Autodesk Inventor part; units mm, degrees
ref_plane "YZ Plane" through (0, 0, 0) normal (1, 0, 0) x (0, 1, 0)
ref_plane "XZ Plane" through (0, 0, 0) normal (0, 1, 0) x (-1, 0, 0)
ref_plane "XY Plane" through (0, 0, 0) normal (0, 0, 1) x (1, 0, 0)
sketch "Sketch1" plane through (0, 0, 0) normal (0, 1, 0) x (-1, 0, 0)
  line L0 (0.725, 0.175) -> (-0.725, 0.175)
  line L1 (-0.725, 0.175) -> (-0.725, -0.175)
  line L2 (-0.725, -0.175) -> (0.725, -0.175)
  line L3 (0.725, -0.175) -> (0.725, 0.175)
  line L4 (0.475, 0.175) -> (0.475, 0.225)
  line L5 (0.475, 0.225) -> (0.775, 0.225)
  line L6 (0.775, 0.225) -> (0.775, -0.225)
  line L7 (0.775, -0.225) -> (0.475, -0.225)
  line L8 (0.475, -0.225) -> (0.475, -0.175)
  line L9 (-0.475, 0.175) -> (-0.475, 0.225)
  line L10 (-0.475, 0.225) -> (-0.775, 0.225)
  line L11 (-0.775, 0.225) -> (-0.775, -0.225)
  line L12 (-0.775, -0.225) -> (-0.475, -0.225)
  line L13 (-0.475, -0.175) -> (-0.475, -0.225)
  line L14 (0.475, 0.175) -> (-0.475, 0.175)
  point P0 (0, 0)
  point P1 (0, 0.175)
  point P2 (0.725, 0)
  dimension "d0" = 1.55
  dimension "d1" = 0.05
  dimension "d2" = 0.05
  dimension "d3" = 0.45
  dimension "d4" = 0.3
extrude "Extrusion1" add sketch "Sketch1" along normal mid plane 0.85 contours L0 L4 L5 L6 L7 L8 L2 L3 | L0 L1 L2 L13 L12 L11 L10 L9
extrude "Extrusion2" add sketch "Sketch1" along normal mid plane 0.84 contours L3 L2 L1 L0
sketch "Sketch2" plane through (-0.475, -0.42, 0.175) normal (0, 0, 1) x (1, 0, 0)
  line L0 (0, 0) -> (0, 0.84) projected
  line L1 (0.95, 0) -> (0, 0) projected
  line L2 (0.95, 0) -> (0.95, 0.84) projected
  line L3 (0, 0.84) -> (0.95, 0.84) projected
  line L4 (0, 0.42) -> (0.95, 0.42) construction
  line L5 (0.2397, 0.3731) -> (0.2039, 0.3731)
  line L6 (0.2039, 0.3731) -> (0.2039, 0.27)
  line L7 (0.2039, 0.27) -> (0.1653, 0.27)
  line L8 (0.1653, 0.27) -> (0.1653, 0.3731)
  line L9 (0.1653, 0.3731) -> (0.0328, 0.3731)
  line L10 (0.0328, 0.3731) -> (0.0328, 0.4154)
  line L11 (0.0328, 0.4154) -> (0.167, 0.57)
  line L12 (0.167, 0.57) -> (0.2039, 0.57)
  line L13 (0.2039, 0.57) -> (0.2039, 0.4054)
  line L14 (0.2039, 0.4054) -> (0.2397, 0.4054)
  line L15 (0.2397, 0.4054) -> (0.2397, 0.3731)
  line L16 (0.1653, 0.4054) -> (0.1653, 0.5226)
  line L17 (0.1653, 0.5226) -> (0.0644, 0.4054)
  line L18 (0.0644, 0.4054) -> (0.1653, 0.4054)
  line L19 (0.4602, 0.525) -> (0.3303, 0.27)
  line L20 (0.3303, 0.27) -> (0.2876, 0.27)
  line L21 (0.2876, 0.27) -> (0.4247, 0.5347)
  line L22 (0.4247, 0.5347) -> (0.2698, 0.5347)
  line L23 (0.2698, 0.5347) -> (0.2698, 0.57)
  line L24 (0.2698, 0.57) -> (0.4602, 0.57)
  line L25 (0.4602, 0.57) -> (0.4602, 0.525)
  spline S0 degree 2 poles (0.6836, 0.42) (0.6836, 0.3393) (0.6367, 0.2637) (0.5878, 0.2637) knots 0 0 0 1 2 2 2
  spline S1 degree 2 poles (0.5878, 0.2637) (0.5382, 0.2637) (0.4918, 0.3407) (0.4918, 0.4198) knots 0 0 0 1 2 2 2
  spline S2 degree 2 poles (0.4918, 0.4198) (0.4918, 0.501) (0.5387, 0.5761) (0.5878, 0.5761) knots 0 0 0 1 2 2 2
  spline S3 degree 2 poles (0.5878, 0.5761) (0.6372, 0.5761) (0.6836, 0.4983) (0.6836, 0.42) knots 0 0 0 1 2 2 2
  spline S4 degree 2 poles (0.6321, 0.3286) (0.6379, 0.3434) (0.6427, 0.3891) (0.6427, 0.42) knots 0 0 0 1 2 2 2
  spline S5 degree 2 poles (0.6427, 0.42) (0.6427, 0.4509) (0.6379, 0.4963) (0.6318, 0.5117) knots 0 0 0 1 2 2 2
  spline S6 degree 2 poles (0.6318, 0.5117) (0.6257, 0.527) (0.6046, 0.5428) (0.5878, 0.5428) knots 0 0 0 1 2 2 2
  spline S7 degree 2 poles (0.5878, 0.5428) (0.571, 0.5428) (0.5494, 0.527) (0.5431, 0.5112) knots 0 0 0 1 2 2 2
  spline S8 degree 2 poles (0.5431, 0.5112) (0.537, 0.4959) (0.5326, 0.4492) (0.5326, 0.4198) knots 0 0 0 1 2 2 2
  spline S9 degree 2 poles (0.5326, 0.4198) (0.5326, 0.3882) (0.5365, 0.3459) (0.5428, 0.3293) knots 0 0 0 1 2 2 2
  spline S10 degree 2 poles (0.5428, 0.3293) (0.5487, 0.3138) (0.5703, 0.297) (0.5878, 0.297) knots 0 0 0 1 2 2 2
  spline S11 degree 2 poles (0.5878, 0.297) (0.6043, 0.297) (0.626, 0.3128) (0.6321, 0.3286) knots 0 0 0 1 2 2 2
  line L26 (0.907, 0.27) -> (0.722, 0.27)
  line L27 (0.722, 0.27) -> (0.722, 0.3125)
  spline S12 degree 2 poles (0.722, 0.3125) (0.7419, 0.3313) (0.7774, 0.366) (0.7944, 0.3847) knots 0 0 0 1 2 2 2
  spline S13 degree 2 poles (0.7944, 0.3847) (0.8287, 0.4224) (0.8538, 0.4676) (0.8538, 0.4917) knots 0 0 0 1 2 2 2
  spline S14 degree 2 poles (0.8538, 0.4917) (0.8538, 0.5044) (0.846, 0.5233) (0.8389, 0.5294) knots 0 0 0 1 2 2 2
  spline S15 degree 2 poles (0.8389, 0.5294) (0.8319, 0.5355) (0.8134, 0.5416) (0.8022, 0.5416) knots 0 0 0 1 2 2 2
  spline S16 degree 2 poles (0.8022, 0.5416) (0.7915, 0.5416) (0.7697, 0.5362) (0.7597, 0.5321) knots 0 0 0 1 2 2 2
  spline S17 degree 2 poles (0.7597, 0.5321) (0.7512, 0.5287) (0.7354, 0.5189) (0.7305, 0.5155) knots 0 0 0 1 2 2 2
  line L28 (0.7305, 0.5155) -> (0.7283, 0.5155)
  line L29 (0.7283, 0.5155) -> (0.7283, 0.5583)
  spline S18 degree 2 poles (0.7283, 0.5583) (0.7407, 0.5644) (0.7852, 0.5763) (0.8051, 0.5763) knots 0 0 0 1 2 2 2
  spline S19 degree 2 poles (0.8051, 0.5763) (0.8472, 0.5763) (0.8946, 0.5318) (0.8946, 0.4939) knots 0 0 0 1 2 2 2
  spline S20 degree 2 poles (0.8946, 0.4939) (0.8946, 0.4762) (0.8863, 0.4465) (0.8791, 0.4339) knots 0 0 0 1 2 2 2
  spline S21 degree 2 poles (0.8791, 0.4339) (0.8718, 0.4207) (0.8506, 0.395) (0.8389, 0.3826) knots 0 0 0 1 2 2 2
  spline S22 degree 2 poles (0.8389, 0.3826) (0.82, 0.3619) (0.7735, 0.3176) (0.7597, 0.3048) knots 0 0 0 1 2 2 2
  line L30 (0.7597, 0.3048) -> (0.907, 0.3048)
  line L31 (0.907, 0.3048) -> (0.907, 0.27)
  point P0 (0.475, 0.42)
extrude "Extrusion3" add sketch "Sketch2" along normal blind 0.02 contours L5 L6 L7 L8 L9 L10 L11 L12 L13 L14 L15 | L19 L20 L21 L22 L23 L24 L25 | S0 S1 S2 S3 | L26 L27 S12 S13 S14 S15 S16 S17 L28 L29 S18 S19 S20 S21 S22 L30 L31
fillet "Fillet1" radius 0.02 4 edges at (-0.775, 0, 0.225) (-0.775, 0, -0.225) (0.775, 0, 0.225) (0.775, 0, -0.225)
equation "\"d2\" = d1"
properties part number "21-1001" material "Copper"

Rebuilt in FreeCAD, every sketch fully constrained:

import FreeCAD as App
import Part
import Sketcher
from FreeCAD import Vector
Q = App.Units.Quantity


def edges_at(feature, points):
    """Names of the edges that pass closest to the given points."""
    edges = feature.Shape.Edges
    near = lambda p: min(range(len(edges)), key=lambda i: edges[i].distToShape(Part.Vertex(*p))[0])
    return sorted({f"Edge{near(p) + 1}" for p in points})


def add_polygon(sketch, points):
    """Adds a closed chain of lines whose ends are joined by coincident constraints."""
    first, n = sketch.GeometryCount, len(points)
    for a, b in zip(points, points[1:] + points[:1]):
        sketch.addGeometry(Part.LineSegment(App.Vector(*a, 0), App.Vector(*b, 0)), False)
    for i in range(n):
        sketch.addConstraint(Sketcher.Constraint("Coincident", first + i, 2, first + (i + 1) % n, 1))

doc = App.newDocument("Part")
body = doc.addObject("PartDesign::Body", "Body")
body.AllowCompound = True

# Sketch on XZ plane
sketch1 = doc.addObject("Sketcher::SketchObject", "Sketch")
body.addObject(sketch1)
sketch1.AttachmentSupport = (doc.XZ_Plane, [""])
sketch1.MapMode = "FlatFace"
add_polygon(sketch1, [(-0.47, 0.17), (-0.72, 0.17), (-0.72, -0.17), (-0.47, -0.17), (-0.47, -0.23), (-0.78, -0.23), (-0.78, 0.23), (-0.47, 0.23)])  # lines 0-7
add_polygon(sketch1, [(0.72, 0.17), (0.47, 0.17), (0.47, 0.23), (0.78, 0.23), (0.78, -0.23), (0.47, -0.23), (0.47, -0.17), (0.72, -0.17)])  # lines 8-15
sketch1.addConstraint([
    Sketcher.Constraint("Horizontal", 0),
    Sketcher.Constraint("Vertical", 1),
    Sketcher.Constraint("Horizontal", 2),
    Sketcher.Constraint("Vertical", 3),
    Sketcher.Constraint("Horizontal", 4),
    Sketcher.Constraint("Vertical", 5),
    Sketcher.Constraint("Horizontal", 6),
    Sketcher.Constraint("Vertical", 7),
    Sketcher.Constraint("Horizontal", 8),
    Sketcher.Constraint("Vertical", 9),
    Sketcher.Constraint("Horizontal", 10),
    Sketcher.Constraint("Vertical", 11),
    Sketcher.Constraint("Horizontal", 12),
    Sketcher.Constraint("Vertical", 13),
    Sketcher.Constraint("Horizontal", 14),
    Sketcher.Constraint("Vertical", 15),
    Sketcher.Constraint("Symmetric", 2, 2, 8, 2, -1, 1),
    Sketcher.Constraint("Symmetric", 4, 2, 10, 2, -1, 1),
    Sketcher.Constraint("Symmetric", 6, 2, 12, 2, -1, 1),
    Sketcher.Constraint("Symmetric", 0, 2, 14, 2, -1, 1),
    Sketcher.Constraint("Symmetric", 7, 2, 8, 2, -2),
    Sketcher.Constraint("Horizontal", 6, 2, 9, 2),
    Sketcher.Constraint("DistanceX", 4, 2, 4, 1, 0.3),
    Sketcher.Constraint("DistanceY", 3, 2, 3, 1, 0.05),
    Sketcher.Constraint("DistanceY", 5, 1, 5, 2, 0.45),
    Sketcher.Constraint("DistanceX", 4, 2, 1, 2, 0.05),
    Sketcher.Constraint("DistanceX", 0, 2, 8, 2, 1.2),
])
pad1 = doc.addObject("PartDesign::Pad", "Pad")
body.addObject(pad1)
pad1.Profile = sketch1
pad1.Length = 0.85
pad1.Midplane = True

# Sketch on XZ plane
sketch2 = doc.addObject("Sketcher::SketchObject", "Sketch001")
body.addObject(sketch2)
sketch2.AttachmentSupport = (doc.XZ_Plane, [""])
sketch2.MapMode = "FlatFace"
add_polygon(sketch2, [(-0.72, -0.17), (-0.72, 0.17), (0.72, 0.17), (0.72, -0.17)])  # lines 0-3
sketch2.addConstraint([
    Sketcher.Constraint("Vertical", 0),
    Sketcher.Constraint("Horizontal", 1),
    Sketcher.Constraint("Vertical", 2),
    Sketcher.Constraint("Horizontal", 3),
    Sketcher.Constraint("Symmetric", 0, 2, 2, 2, -1, 1),
    Sketcher.Constraint("DistanceX", 1, 1, 1, 2, 1.45),
    Sketcher.Constraint("DistanceY", 0, 1, 0, 2, 0.35),
])
pad2 = doc.addObject("PartDesign::Pad", "Pad001")
body.addObject(pad2)
pad2.Profile = sketch2
pad2.Length = 0.84
pad2.Midplane = True

# Sketch on XY plane
sketch3 = doc.addObject("Sketcher::SketchObject", "Sketch002")
body.addObject(sketch3)
sketch3.AttachmentSupport = (doc.XY_Plane, [""])
sketch3.MapMode = "FlatFace"
sketch3.AttachmentOffset = App.Placement(Vector(0, 0, 0.175), App.Rotation())
add_polygon(sketch3, [(-0.2711, -0.0469), (-0.2353, -0.0469), (-0.2353, -0.0146), (-0.2711, -0.0146), (-0.2711, 0.15), (-0.308, 0.15), (-0.4422, -0.0046), (-0.4422, -0.0469), (-0.3097, -0.0469), (-0.3097, -0.15), (-0.2711, -0.15)])  # lines 0-10
add_polygon(sketch3, [(-0.3097, 0.1026), (-0.3097, -0.0146), (-0.4106, -0.0146)])  # lines 11-13
add_polygon(sketch3, [(-0.1447, -0.15), (-0.0148, 0.105), (-0.0148, 0.15), (-0.2052, 0.15), (-0.2052, 0.1147), (-0.0503, 0.1147), (-0.1874, -0.15)])  # lines 14-20
sketch3.addGeometry(Part.BSplineCurve([Vector(0.2086, 0, 0), Vector(0.2086, -0.0807, 0), Vector(0.1617, -0.1563, 0), Vector(0.1128, -0.1563, 0)], [3, 1, 3], [0, 1, 2], False, 2, [1, 1, 1, 1], False), False)  # 21
sketch3.addGeometry(Part.BSplineCurve([Vector(0.1128, 0.1561, 0), Vector(0.1622, 0.1561, 0), Vector(0.2086, 0.0783, 0), Vector(0.2086, 0, 0)], [3, 1, 3], [0, 1, 2], False, 2, [1, 1, 1, 1], False), False)  # 22
sketch3.addGeometry(Part.BSplineCurve([Vector(0.0168, -0.0002, 0), Vector(0.0168, 0.081, 0), Vector(0.0637, 0.1561, 0), Vector(0.1128, 0.1561, 0)], [3, 1, 3], [0, 1, 2], False, 2, [1, 1, 1, 1], False), False)  # 23
sketch3.addGeometry(Part.BSplineCurve([Vector(0.1128, -0.1563, 0), Vector(0.0632, -0.1563, 0), Vector(0.0168, -0.0793, 0), Vector(0.0168, -0.0002, 0)], [3, 1, 3], [0, 1, 2], False, 2, [1, 1, 1, 1], False), False)  # 24
sketch3.addGeometry(Part.BSplineCurve([Vector(0.1571, -0.0914, 0), Vector(0.1629, -0.0766, 0), Vector(0.1677, -0.0309, 0), Vector(0.1677, 0, 0)], [3, 1, 3], [0, 1, 2], False, 2, [1, 1, 1, 1], False), False)  # 25
sketch3.addGeometry(Part.BSplineCurve([Vector(0.1128, -0.123, 0), Vector(0.1293, -0.123, 0), Vector(0.151, -0.1072, 0), Vector(0.1571, -0.0914, 0)], [3, 1, 3], [0, 1, 2], False, 2, [1, 1, 1, 1], False), False)  # 26
sketch3.addGeometry(Part.BSplineCurve([Vector(0.0678, -0.0907, 0), Vector(0.0737, -0.1062, 0), Vector(0.0953, -0.123, 0), Vector(0.1128, -0.123, 0)], [3, 1, 3], [0, 1, 2], False, 2, [1, 1, 1, 1], False), False)  # 27
sketch3.addGeometry(Part.BSplineCurve([Vector(0.0576, -0.0002, 0), Vector(0.0576, -0.0318, 0), Vector(0.0615, -0.0741, 0), Vector(0.0678, -0.0907, 0)], [3, 1, 3], [0, 1, 2], False, 2, [1, 1, 1, 1], False), False)  # 28
sketch3.addGeometry(Part.BSplineCurve([Vector(0.0681, 0.0912, 0), Vector(0.062, 0.0759, 0), Vector(0.0576, 0.0292, 0), Vector(0.0576, -0.0002, 0)], [3, 1, 3], [0, 1, 2], False, 2, [1, 1, 1, 1], False), False)  # 29
sketch3.addGeometry(Part.BSplineCurve([Vector(0.1128, 0.1228, 0), Vector(0.096, 0.1228, 0), Vector(0.0744, 0.107, 0), Vector(0.0681, 0.0912, 0)], [3, 1, 3], [0, 1, 2], False, 2, [1, 1, 1, 1], False), False)  # 30
sketch3.addGeometry(Part.BSplineCurve([Vector(0.1568, 0.0917, 0), Vector(0.1507, 0.107, 0), Vector(0.1296, 0.1228, 0), Vector(0.1128, 0.1228, 0)], [3, 1, 3], [0, 1, 2], False, 2, [1, 1, 1, 1], False), False)  # 31
sketch3.addGeometry(Part.BSplineCurve([Vector(0.1677, 0, 0), Vector(0.1677, 0.0309, 0), Vector(0.1629, 0.0763, 0), Vector(0.1568, 0.0917, 0)], [3, 1, 3], [0, 1, 2], False, 2, [1, 1, 1, 1], False), False)  # 32
sketch3.addGeometry(Part.LineSegment(Vector(0.247, -0.15, 0), Vector(0.432, -0.15, 0)), False)  # 33
sketch3.addGeometry(Part.LineSegment(Vector(0.432, -0.15, 0), Vector(0.432, -0.1152, 0)), False)  # 34
sketch3.addGeometry(Part.LineSegment(Vector(0.432, -0.1152, 0), Vector(0.2847, -0.1152, 0)), False)  # 35
sketch3.addGeometry(Part.BSplineCurve([Vector(0.3639, -0.0374, 0), Vector(0.345, -0.0581, 0), Vector(0.2985, -0.1024, 0), Vector(0.2847, -0.1152, 0)], [3, 1, 3], [0, 1, 2], False, 2, [1, 1, 1, 1], False), False)  # 36
sketch3.addGeometry(Part.BSplineCurve([Vector(0.4041, 0.0139, 0), Vector(0.3968, 0.0007, 0), Vector(0.3756, -0.025, 0), Vector(0.3639, -0.0374, 0)], [3, 1, 3], [0, 1, 2], False, 2, [1, 1, 1, 1], False), False)  # 37
sketch3.addGeometry(Part.BSplineCurve([Vector(0.4196, 0.0739, 0), Vector(0.4196, 0.0562, 0), Vector(0.4113, 0.0265, 0), Vector(0.4041, 0.0139, 0)], [3, 1, 3], [0, 1, 2], False, 2, [1, 1, 1, 1], False), False)  # 38
sketch3.addGeometry(Part.BSplineCurve([Vector(0.3301, 0.1563, 0), Vector(0.3722, 0.1563, 0), Vector(0.4196, 0.1118, 0), Vector(0.4196, 0.0739, 0)], [3, 1, 3], [0, 1, 2], False, 2, [1, 1, 1, 1], False), False)  # 39
sketch3.addGeometry(Part.BSplineCurve([Vector(0.2533, 0.1383, 0), Vector(0.2657, 0.1444, 0), Vector(0.3102, 0.1563, 0), Vector(0.3301, 0.1563, 0)], [3, 1, 3], [0, 1, 2], False, 2, [1, 1, 1, 1], False), False)  # 40
sketch3.addGeometry(Part.LineSegment(Vector(0.2533, 0.1383, 0), Vector(0.2533, 0.0955, 0)), False)  # 41
sketch3.addGeometry(Part.LineSegment(Vector(0.2533, 0.0955, 0), Vector(0.2555, 0.0955, 0)), False)  # 42
sketch3.addGeometry(Part.BSplineCurve([Vector(0.2847, 0.1121, 0), Vector(0.2762, 0.1087, 0), Vector(0.2604, 0.0989, 0), Vector(0.2555, 0.0955, 0)], [3, 1, 3], [0, 1, 2], False, 2, [1, 1, 1, 1], False), False)  # 43
sketch3.addGeometry(Part.BSplineCurve([Vector(0.3272, 0.1216, 0), Vector(0.3165, 0.1216, 0), Vector(0.2947, 0.1162, 0), Vector(0.2847, 0.1121, 0)], [3, 1, 3], [0, 1, 2], False, 2, [1, 1, 1, 1], False), False)  # 44
sketch3.addGeometry(Part.BSplineCurve([Vector(0.3639, 0.1094, 0), Vector(0.3569, 0.1155, 0), Vector(0.3384, 0.1216, 0), Vector(0.3272, 0.1216, 0)], [3, 1, 3], [0, 1, 2], False, 2, [1, 1, 1, 1], False), False)  # 45
sketch3.addGeometry(Part.BSplineCurve([Vector(0.3788, 0.0717, 0), Vector(0.3788, 0.0844, 0), Vector(0.371, 0.1033, 0), Vector(0.3639, 0.1094, 0)], [3, 1, 3], [0, 1, 2], False, 2, [1, 1, 1, 1], False), False)  # 46
sketch3.addGeometry(Part.BSplineCurve([Vector(0.3194, -0.0353, 0), Vector(0.3537, 0.0024, 0), Vector(0.3788, 0.0476, 0), Vector(0.3788, 0.0717, 0)], [3, 1, 3], [0, 1, 2], False, 2, [1, 1, 1, 1], False), False)  # 47
sketch3.addGeometry(Part.BSplineCurve([Vector(0.247, -0.1075, 0), Vector(0.2669, -0.0887, 0), Vector(0.3024, -0.054, 0), Vector(0.3194, -0.0353, 0)], [3, 1, 3], [0, 1, 2], False, 2, [1, 1, 1, 1], False), False)  # 48
sketch3.addGeometry(Part.LineSegment(Vector(0.247, -0.1075, 0), Vector(0.247, -0.15, 0)), False)  # 49
sketch3.addConstraint([
    Sketcher.Constraint("Block", 21),
    Sketcher.Constraint("Block", 22),
    Sketcher.Constraint("Block", 23),
    Sketcher.Constraint("Block", 24),
    Sketcher.Constraint("Block", 25),
    Sketcher.Constraint("Block", 26),
    Sketcher.Constraint("Block", 27),
    Sketcher.Constraint("Block", 28),
    Sketcher.Constraint("Block", 29),
    Sketcher.Constraint("Block", 30),
    Sketcher.Constraint("Block", 31),
    Sketcher.Constraint("Block", 32),
    Sketcher.Constraint("Block", 36),
    Sketcher.Constraint("Block", 37),
    Sketcher.Constraint("Block", 38),
    Sketcher.Constraint("Block", 39),
    Sketcher.Constraint("Block", 40),
    Sketcher.Constraint("Block", 43),
    Sketcher.Constraint("Block", 44),
    Sketcher.Constraint("Block", 45),
    Sketcher.Constraint("Block", 46),
    Sketcher.Constraint("Block", 47),
    Sketcher.Constraint("Block", 48),
    Sketcher.Constraint("Coincident", 33, 2, 34, 1),
    Sketcher.Constraint("Coincident", 34, 2, 35, 1),
    Sketcher.Constraint("Coincident", 35, 2, 36, 2),
    Sketcher.Constraint("Coincident", 40, 1, 41, 1),
    Sketcher.Constraint("Coincident", 41, 2, 42, 1),
    Sketcher.Constraint("Coincident", 42, 2, 43, 2),
    Sketcher.Constraint("Coincident", 48, 1, 49, 1),
    Sketcher.Constraint("Coincident", 49, 2, 33, 1),
    Sketcher.Constraint("Horizontal", 0),
    Sketcher.Constraint("Vertical", 1),
    Sketcher.Constraint("Horizontal", 2),
    Sketcher.Constraint("Vertical", 3),
    Sketcher.Constraint("Horizontal", 4),
    Sketcher.Constraint("Vertical", 6),
    Sketcher.Constraint("Horizontal", 7),
    Sketcher.Constraint("Vertical", 8),
    Sketcher.Constraint("Horizontal", 9),
    Sketcher.Constraint("Vertical", 10),
    Sketcher.Constraint("Vertical", 11),
    Sketcher.Constraint("Horizontal", 12),
    Sketcher.Constraint("Vertical", 15),
    Sketcher.Constraint("Horizontal", 16),
    Sketcher.Constraint("Vertical", 17),
    Sketcher.Constraint("Horizontal", 18),
    Sketcher.Constraint("Horizontal", 20),
    Sketcher.Constraint("Horizontal", 33),
    Sketcher.Constraint("Vertical", 34),
    Sketcher.Constraint("Horizontal", 35),
    Sketcher.Constraint("Vertical", 41),
    Sketcher.Constraint("Horizontal", 42),
    Sketcher.Constraint("Vertical", 49),
    Sketcher.Constraint("Symmetric", 3, 2, 9, 2, -1),
    Sketcher.Constraint("Horizontal", 0, 2, 6, 2),
    Sketcher.Constraint("Horizontal", 2, 2, 11, 2),
    Sketcher.Constraint("Horizontal", 4, 2, 15, 2),
    Sketcher.Constraint("Horizontal", 9, 2, 19, 2),
    Sketcher.Constraint("Horizontal", 20, 2, 33, 2),
    Sketcher.Constraint("Vertical", 8, 2, 11, 2),
    Sketcher.Constraint("Equal", 20, 41),
    Sketcher.Constraint("Equal", 6, 49),
    Sketcher.Constraint("Angle", 5, Q("-130.9595 deg")),
    Sketcher.Constraint("DistanceY", 33, 2, 15, 2, 0.3),
    Sketcher.Constraint("DistanceX", 4, 2, 4, 1, 0.037),
    Sketcher.Constraint("DistanceX", 12, 2, 12, 1, 0.101),
    Sketcher.Constraint("DistanceX", 18, 1, 18, 2, 0.155),
    Sketcher.Constraint("DistanceX", 33, 1, 33, 2, 0.185),
    Sketcher.Constraint("DistanceY", 8, 2, 8, 1, 0.103),
    Sketcher.Constraint("DistanceY", 15, 1, 15, 2, 0.045),
    Sketcher.Constraint("DistanceY", 2, 2, 5, 2, 0.01),
    Sketcher.Constraint("DistanceX", 1, 2, 16, 2, 0.03),
    Sketcher.Constraint("DistanceY", 34, 2, 18, 2, 0.23),
    Sketcher.Constraint("Distance", 19, 0.298),
    Sketcher.Constraint("DistanceX", 0, 1, 0, 2, 0.0358),
    Sketcher.Constraint("DistanceX", 7, 1, 7, 2, 0.1325),
    Sketcher.Constraint("DistanceX", 16, 2, 16, 1, 0.1904),
    Sketcher.Constraint("DistanceY", 11, 2, 11, 1, 0.1172),
    Sketcher.Constraint("DistanceX", 2, 2, -1, 1, 0.271),
])
pad3 = doc.addObject("PartDesign::Pad", "Pad002")
body.addObject(pad3)
pad3.Profile = sketch3
pad3.Length = 0.02
doc.recompute()

fillet = doc.addObject("PartDesign::Fillet", "Fillet")
body.addObject(fillet)
fillet.Base = (pad3, edges_at(pad3, [
    (-0.775, 0, 0.225),
    (-0.775, 0, -0.225),
    (0.775, 0, 0.225),
    (0.775, 0, -0.225),
]))
fillet.Radius = 0.02

doc.recompute()
